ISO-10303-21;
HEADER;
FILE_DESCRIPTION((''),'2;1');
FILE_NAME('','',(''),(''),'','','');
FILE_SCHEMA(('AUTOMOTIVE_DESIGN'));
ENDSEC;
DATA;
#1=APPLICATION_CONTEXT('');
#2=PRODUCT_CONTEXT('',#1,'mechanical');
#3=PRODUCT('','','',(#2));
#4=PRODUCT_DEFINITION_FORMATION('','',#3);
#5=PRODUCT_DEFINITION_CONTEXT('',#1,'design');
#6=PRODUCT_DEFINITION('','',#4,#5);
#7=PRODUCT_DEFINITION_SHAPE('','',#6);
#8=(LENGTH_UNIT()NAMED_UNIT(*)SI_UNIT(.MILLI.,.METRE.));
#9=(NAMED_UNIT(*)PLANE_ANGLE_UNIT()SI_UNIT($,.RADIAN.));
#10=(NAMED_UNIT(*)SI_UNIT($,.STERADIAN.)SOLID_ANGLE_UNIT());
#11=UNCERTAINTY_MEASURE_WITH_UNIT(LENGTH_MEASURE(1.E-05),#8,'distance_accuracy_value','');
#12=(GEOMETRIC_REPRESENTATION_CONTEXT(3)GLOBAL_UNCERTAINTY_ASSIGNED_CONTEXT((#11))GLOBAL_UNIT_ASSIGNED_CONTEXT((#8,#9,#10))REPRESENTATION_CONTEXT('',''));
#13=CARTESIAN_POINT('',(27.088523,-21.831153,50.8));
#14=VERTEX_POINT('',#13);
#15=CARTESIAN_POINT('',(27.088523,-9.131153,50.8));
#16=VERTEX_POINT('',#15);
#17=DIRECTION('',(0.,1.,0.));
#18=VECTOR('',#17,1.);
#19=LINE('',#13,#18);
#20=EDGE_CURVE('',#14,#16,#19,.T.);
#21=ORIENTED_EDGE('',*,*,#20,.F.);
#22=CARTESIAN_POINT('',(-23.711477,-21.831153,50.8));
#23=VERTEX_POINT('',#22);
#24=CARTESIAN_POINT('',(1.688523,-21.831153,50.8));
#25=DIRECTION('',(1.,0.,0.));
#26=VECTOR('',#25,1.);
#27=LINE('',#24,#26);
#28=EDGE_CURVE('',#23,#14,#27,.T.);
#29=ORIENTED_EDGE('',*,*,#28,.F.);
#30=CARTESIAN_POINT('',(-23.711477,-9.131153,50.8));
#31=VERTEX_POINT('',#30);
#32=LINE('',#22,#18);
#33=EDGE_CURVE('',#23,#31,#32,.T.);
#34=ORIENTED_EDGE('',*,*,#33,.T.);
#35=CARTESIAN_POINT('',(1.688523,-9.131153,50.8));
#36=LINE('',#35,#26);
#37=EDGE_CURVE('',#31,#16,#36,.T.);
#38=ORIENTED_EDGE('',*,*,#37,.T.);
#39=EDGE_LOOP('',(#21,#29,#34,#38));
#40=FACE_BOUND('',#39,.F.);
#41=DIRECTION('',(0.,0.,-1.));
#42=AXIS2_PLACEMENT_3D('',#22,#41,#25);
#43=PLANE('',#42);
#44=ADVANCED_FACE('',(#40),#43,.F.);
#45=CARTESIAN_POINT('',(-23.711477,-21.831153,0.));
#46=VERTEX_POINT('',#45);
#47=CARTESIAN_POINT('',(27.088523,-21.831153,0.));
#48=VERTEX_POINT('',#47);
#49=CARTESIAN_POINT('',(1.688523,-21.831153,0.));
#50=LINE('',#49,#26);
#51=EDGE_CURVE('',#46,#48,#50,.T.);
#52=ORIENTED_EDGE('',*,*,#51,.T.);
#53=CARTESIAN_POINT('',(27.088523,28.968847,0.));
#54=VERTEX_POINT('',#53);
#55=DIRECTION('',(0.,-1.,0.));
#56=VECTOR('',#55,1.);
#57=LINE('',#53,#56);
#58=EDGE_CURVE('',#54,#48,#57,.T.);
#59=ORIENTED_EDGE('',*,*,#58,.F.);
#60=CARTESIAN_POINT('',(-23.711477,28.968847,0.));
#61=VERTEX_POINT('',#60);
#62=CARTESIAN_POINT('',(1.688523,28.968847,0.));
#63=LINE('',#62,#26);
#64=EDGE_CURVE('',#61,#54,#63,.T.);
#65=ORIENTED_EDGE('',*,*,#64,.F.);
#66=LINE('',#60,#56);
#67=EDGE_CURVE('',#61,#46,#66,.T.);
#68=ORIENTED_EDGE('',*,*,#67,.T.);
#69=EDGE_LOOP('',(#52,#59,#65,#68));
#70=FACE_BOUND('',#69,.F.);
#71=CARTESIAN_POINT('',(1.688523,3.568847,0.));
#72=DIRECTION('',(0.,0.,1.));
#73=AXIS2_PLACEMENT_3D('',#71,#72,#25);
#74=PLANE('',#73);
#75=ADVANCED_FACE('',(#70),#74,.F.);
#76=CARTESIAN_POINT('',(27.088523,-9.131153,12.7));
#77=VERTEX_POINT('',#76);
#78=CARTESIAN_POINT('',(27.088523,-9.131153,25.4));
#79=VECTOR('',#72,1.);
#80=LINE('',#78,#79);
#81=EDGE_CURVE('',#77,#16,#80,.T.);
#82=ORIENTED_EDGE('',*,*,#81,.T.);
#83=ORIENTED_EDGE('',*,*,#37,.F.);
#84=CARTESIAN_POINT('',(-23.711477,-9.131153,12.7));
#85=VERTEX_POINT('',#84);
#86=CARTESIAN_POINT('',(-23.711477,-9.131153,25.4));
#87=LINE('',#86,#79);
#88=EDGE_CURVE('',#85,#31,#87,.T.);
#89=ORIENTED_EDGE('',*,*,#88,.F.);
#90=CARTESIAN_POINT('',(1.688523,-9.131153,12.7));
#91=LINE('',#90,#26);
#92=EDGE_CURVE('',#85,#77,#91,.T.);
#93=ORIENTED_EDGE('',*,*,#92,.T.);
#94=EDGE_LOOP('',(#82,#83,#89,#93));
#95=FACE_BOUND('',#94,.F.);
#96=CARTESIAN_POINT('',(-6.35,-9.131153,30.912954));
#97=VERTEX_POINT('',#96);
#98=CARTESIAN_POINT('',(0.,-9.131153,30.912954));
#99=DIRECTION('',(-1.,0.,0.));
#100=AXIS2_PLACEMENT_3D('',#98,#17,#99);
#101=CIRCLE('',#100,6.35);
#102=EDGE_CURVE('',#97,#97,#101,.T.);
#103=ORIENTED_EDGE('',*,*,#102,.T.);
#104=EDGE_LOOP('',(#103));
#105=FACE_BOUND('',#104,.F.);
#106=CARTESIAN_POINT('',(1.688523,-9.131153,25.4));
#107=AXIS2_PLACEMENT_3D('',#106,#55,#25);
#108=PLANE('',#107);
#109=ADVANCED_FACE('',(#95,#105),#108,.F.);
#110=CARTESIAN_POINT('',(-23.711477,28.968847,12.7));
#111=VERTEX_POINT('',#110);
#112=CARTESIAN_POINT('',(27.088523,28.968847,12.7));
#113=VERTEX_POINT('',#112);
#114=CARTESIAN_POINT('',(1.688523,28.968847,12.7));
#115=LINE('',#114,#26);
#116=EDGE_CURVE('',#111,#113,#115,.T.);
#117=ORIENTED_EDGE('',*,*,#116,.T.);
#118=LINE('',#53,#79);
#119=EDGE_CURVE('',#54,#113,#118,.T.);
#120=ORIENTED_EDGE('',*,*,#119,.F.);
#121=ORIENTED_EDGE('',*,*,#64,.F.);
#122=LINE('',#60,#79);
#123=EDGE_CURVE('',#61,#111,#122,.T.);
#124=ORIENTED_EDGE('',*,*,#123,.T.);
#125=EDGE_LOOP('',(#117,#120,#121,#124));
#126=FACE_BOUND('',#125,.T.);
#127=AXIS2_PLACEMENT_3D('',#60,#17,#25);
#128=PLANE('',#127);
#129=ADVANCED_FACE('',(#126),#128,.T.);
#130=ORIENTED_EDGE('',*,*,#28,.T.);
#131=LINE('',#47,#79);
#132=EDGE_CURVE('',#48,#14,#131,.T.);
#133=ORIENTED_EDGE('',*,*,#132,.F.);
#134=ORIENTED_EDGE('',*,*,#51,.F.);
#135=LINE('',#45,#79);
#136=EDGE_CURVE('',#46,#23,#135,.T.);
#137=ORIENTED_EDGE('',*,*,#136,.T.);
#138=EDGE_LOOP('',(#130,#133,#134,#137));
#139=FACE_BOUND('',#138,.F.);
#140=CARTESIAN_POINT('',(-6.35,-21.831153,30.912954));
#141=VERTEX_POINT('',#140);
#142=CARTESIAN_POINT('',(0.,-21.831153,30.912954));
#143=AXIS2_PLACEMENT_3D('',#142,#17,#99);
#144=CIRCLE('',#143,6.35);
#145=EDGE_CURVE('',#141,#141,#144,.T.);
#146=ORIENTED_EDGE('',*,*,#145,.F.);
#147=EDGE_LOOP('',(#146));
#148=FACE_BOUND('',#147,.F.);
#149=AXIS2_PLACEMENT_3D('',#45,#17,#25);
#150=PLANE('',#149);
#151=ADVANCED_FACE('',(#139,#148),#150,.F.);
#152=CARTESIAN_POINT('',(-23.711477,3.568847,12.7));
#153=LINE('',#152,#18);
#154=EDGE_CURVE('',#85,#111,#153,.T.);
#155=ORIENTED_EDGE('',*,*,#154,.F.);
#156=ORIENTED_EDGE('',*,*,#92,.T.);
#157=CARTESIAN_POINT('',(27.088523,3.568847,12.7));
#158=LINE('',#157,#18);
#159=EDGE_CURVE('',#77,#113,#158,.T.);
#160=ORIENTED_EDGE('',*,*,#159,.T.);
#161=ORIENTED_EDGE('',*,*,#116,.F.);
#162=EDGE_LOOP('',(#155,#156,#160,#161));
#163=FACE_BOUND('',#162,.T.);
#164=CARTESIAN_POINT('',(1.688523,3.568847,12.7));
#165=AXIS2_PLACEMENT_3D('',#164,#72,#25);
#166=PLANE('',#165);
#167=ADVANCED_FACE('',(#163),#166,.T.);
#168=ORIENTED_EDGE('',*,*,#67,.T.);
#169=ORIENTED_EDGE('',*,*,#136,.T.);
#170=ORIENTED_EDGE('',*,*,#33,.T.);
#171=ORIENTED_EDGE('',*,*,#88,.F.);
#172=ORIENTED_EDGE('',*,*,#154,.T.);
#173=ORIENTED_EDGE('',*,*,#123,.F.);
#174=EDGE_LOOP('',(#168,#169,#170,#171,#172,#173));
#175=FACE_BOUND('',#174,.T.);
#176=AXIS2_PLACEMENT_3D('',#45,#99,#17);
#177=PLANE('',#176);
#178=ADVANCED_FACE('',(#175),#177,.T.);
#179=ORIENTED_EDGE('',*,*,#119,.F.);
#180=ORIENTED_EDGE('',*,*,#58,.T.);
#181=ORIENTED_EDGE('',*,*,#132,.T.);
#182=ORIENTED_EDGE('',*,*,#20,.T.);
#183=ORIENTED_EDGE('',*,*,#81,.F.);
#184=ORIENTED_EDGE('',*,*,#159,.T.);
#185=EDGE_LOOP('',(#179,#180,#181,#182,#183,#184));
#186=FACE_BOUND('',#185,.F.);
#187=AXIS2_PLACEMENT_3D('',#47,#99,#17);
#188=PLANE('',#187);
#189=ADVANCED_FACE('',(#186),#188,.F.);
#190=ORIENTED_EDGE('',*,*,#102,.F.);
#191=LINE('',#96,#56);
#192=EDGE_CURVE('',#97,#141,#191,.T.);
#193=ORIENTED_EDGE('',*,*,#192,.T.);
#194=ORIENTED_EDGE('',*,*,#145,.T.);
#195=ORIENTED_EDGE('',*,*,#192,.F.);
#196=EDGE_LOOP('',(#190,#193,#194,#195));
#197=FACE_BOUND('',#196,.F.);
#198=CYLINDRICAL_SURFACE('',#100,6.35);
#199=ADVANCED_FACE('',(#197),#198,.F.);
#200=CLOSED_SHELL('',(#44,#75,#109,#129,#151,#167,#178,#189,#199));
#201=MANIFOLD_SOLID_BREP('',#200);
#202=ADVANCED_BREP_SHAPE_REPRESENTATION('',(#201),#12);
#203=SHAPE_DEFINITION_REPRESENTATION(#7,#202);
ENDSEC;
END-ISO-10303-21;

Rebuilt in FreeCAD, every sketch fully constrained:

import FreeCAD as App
import Part
import Sketcher

V = App.Vector
Q = App.Units.Quantity


def add_polygon(sketch, points):
    """Adds a closed chain of lines whose ends are joined by coincident constraints."""
    first, n = sketch.GeometryCount, len(points)
    for a, b in zip(points, points[1:] + points[:1]):
        sketch.addGeometry(Part.LineSegment(App.Vector(*a, 0), App.Vector(*b, 0)), False)
    for i in range(n):
        sketch.addConstraint(Sketcher.Constraint("Coincident", first + i, 2, first + (i + 1) % n, 1))

doc = App.newDocument("Part")
body = doc.addObject("PartDesign::Body", "Body")

# Sketch on XY plane
sketch1 = body.newObject("Sketcher::SketchObject", "Sketch")
sketch1.AttachmentSupport = (doc.getObject("XY_Plane"), [""])
sketch1.MapMode = "FlatFace"
add_polygon(sketch1, [(-24, 29), (-24, -22), (27, -22), (27, 29)])  # lines 0-3
sketch1.addConstraint([
    Sketcher.Constraint("Vertical", 0),
    Sketcher.Constraint("Horizontal", 1),
    Sketcher.Constraint("Vertical", 2),
    Sketcher.Constraint("Horizontal", 3),
    Sketcher.Constraint("Equal", 3, 0),
    Sketcher.Constraint("DistanceX", 1, 1, 1, 2, Q("2 in")),
    Sketcher.Constraint("DistanceX", 0, 2, -1, 1, Q("23.711477 mm")),
    Sketcher.Constraint("DistanceY", 0, 2, -1, 1, Q("21.831153 mm")),
])
pad1 = body.newObject("PartDesign::Pad", "Pad")
pad1.Profile = sketch1
pad1.Length = Q("0.5 in")

# Sketch on XZ plane
sketch2 = body.newObject("Sketcher::SketchObject", "Sketch001")
sketch2.AttachmentSupport = (doc.getObject("XZ_Plane"), [""])
sketch2.MapMode = "FlatFace"
sketch2.AttachmentOffset = App.Placement(V(0, 0, 21.831153), App.Rotation())
add_polygon(sketch2, [(-24, 51), (-24, 0), (27, 0), (27, 51)])  # lines 0-3
sketch2.addConstraint([
    Sketcher.Constraint("Vertical", 0),
    Sketcher.Constraint("Horizontal", 1),
    Sketcher.Constraint("Vertical", 2),
    Sketcher.Constraint("Horizontal", 3),
    Sketcher.Constraint("PointOnObject", 0, 2, -1),
    Sketcher.Constraint("Equal", 3, 0),
    Sketcher.Constraint("DistanceX", 1, 1, 1, 2, Q("2 in")),
    Sketcher.Constraint("DistanceX", 0, 2, -1, 1, Q("23.711477 mm")),
])
pad2 = body.newObject("PartDesign::Pad", "Pad001")
pad2.Profile = sketch2
pad2.Length = Q("0.5 in")
pad2.Reversed = True

# Sketch on XZ plane
sketch3 = body.newObject("Sketcher::SketchObject", "Sketch002")
sketch3.AttachmentSupport = (doc.getObject("XZ_Plane"), [""])
sketch3.MapMode = "FlatFace"
sketch3.AttachmentOffset = App.Placement(V(0, 0, 9.131153), App.Rotation())
sketch3.addGeometry(Part.Circle(V(0, 31, 0), V(0, 0, 1), 6), False)
sketch3.addConstraint([
    Sketcher.Constraint("PointOnObject", 0, 3, -2),
    Sketcher.Constraint("Diameter", 0, Q("0.5 in")),
    Sketcher.Constraint("DistanceY", -1, 1, 0, 3, Q("30.912954 mm")),
])
pocket1 = body.newObject("PartDesign::Pocket", "Pocket")
pocket1.Profile = sketch3
pocket1.Length = Q("0.6 in")
pocket1.Reversed = True

doc.recompute()
